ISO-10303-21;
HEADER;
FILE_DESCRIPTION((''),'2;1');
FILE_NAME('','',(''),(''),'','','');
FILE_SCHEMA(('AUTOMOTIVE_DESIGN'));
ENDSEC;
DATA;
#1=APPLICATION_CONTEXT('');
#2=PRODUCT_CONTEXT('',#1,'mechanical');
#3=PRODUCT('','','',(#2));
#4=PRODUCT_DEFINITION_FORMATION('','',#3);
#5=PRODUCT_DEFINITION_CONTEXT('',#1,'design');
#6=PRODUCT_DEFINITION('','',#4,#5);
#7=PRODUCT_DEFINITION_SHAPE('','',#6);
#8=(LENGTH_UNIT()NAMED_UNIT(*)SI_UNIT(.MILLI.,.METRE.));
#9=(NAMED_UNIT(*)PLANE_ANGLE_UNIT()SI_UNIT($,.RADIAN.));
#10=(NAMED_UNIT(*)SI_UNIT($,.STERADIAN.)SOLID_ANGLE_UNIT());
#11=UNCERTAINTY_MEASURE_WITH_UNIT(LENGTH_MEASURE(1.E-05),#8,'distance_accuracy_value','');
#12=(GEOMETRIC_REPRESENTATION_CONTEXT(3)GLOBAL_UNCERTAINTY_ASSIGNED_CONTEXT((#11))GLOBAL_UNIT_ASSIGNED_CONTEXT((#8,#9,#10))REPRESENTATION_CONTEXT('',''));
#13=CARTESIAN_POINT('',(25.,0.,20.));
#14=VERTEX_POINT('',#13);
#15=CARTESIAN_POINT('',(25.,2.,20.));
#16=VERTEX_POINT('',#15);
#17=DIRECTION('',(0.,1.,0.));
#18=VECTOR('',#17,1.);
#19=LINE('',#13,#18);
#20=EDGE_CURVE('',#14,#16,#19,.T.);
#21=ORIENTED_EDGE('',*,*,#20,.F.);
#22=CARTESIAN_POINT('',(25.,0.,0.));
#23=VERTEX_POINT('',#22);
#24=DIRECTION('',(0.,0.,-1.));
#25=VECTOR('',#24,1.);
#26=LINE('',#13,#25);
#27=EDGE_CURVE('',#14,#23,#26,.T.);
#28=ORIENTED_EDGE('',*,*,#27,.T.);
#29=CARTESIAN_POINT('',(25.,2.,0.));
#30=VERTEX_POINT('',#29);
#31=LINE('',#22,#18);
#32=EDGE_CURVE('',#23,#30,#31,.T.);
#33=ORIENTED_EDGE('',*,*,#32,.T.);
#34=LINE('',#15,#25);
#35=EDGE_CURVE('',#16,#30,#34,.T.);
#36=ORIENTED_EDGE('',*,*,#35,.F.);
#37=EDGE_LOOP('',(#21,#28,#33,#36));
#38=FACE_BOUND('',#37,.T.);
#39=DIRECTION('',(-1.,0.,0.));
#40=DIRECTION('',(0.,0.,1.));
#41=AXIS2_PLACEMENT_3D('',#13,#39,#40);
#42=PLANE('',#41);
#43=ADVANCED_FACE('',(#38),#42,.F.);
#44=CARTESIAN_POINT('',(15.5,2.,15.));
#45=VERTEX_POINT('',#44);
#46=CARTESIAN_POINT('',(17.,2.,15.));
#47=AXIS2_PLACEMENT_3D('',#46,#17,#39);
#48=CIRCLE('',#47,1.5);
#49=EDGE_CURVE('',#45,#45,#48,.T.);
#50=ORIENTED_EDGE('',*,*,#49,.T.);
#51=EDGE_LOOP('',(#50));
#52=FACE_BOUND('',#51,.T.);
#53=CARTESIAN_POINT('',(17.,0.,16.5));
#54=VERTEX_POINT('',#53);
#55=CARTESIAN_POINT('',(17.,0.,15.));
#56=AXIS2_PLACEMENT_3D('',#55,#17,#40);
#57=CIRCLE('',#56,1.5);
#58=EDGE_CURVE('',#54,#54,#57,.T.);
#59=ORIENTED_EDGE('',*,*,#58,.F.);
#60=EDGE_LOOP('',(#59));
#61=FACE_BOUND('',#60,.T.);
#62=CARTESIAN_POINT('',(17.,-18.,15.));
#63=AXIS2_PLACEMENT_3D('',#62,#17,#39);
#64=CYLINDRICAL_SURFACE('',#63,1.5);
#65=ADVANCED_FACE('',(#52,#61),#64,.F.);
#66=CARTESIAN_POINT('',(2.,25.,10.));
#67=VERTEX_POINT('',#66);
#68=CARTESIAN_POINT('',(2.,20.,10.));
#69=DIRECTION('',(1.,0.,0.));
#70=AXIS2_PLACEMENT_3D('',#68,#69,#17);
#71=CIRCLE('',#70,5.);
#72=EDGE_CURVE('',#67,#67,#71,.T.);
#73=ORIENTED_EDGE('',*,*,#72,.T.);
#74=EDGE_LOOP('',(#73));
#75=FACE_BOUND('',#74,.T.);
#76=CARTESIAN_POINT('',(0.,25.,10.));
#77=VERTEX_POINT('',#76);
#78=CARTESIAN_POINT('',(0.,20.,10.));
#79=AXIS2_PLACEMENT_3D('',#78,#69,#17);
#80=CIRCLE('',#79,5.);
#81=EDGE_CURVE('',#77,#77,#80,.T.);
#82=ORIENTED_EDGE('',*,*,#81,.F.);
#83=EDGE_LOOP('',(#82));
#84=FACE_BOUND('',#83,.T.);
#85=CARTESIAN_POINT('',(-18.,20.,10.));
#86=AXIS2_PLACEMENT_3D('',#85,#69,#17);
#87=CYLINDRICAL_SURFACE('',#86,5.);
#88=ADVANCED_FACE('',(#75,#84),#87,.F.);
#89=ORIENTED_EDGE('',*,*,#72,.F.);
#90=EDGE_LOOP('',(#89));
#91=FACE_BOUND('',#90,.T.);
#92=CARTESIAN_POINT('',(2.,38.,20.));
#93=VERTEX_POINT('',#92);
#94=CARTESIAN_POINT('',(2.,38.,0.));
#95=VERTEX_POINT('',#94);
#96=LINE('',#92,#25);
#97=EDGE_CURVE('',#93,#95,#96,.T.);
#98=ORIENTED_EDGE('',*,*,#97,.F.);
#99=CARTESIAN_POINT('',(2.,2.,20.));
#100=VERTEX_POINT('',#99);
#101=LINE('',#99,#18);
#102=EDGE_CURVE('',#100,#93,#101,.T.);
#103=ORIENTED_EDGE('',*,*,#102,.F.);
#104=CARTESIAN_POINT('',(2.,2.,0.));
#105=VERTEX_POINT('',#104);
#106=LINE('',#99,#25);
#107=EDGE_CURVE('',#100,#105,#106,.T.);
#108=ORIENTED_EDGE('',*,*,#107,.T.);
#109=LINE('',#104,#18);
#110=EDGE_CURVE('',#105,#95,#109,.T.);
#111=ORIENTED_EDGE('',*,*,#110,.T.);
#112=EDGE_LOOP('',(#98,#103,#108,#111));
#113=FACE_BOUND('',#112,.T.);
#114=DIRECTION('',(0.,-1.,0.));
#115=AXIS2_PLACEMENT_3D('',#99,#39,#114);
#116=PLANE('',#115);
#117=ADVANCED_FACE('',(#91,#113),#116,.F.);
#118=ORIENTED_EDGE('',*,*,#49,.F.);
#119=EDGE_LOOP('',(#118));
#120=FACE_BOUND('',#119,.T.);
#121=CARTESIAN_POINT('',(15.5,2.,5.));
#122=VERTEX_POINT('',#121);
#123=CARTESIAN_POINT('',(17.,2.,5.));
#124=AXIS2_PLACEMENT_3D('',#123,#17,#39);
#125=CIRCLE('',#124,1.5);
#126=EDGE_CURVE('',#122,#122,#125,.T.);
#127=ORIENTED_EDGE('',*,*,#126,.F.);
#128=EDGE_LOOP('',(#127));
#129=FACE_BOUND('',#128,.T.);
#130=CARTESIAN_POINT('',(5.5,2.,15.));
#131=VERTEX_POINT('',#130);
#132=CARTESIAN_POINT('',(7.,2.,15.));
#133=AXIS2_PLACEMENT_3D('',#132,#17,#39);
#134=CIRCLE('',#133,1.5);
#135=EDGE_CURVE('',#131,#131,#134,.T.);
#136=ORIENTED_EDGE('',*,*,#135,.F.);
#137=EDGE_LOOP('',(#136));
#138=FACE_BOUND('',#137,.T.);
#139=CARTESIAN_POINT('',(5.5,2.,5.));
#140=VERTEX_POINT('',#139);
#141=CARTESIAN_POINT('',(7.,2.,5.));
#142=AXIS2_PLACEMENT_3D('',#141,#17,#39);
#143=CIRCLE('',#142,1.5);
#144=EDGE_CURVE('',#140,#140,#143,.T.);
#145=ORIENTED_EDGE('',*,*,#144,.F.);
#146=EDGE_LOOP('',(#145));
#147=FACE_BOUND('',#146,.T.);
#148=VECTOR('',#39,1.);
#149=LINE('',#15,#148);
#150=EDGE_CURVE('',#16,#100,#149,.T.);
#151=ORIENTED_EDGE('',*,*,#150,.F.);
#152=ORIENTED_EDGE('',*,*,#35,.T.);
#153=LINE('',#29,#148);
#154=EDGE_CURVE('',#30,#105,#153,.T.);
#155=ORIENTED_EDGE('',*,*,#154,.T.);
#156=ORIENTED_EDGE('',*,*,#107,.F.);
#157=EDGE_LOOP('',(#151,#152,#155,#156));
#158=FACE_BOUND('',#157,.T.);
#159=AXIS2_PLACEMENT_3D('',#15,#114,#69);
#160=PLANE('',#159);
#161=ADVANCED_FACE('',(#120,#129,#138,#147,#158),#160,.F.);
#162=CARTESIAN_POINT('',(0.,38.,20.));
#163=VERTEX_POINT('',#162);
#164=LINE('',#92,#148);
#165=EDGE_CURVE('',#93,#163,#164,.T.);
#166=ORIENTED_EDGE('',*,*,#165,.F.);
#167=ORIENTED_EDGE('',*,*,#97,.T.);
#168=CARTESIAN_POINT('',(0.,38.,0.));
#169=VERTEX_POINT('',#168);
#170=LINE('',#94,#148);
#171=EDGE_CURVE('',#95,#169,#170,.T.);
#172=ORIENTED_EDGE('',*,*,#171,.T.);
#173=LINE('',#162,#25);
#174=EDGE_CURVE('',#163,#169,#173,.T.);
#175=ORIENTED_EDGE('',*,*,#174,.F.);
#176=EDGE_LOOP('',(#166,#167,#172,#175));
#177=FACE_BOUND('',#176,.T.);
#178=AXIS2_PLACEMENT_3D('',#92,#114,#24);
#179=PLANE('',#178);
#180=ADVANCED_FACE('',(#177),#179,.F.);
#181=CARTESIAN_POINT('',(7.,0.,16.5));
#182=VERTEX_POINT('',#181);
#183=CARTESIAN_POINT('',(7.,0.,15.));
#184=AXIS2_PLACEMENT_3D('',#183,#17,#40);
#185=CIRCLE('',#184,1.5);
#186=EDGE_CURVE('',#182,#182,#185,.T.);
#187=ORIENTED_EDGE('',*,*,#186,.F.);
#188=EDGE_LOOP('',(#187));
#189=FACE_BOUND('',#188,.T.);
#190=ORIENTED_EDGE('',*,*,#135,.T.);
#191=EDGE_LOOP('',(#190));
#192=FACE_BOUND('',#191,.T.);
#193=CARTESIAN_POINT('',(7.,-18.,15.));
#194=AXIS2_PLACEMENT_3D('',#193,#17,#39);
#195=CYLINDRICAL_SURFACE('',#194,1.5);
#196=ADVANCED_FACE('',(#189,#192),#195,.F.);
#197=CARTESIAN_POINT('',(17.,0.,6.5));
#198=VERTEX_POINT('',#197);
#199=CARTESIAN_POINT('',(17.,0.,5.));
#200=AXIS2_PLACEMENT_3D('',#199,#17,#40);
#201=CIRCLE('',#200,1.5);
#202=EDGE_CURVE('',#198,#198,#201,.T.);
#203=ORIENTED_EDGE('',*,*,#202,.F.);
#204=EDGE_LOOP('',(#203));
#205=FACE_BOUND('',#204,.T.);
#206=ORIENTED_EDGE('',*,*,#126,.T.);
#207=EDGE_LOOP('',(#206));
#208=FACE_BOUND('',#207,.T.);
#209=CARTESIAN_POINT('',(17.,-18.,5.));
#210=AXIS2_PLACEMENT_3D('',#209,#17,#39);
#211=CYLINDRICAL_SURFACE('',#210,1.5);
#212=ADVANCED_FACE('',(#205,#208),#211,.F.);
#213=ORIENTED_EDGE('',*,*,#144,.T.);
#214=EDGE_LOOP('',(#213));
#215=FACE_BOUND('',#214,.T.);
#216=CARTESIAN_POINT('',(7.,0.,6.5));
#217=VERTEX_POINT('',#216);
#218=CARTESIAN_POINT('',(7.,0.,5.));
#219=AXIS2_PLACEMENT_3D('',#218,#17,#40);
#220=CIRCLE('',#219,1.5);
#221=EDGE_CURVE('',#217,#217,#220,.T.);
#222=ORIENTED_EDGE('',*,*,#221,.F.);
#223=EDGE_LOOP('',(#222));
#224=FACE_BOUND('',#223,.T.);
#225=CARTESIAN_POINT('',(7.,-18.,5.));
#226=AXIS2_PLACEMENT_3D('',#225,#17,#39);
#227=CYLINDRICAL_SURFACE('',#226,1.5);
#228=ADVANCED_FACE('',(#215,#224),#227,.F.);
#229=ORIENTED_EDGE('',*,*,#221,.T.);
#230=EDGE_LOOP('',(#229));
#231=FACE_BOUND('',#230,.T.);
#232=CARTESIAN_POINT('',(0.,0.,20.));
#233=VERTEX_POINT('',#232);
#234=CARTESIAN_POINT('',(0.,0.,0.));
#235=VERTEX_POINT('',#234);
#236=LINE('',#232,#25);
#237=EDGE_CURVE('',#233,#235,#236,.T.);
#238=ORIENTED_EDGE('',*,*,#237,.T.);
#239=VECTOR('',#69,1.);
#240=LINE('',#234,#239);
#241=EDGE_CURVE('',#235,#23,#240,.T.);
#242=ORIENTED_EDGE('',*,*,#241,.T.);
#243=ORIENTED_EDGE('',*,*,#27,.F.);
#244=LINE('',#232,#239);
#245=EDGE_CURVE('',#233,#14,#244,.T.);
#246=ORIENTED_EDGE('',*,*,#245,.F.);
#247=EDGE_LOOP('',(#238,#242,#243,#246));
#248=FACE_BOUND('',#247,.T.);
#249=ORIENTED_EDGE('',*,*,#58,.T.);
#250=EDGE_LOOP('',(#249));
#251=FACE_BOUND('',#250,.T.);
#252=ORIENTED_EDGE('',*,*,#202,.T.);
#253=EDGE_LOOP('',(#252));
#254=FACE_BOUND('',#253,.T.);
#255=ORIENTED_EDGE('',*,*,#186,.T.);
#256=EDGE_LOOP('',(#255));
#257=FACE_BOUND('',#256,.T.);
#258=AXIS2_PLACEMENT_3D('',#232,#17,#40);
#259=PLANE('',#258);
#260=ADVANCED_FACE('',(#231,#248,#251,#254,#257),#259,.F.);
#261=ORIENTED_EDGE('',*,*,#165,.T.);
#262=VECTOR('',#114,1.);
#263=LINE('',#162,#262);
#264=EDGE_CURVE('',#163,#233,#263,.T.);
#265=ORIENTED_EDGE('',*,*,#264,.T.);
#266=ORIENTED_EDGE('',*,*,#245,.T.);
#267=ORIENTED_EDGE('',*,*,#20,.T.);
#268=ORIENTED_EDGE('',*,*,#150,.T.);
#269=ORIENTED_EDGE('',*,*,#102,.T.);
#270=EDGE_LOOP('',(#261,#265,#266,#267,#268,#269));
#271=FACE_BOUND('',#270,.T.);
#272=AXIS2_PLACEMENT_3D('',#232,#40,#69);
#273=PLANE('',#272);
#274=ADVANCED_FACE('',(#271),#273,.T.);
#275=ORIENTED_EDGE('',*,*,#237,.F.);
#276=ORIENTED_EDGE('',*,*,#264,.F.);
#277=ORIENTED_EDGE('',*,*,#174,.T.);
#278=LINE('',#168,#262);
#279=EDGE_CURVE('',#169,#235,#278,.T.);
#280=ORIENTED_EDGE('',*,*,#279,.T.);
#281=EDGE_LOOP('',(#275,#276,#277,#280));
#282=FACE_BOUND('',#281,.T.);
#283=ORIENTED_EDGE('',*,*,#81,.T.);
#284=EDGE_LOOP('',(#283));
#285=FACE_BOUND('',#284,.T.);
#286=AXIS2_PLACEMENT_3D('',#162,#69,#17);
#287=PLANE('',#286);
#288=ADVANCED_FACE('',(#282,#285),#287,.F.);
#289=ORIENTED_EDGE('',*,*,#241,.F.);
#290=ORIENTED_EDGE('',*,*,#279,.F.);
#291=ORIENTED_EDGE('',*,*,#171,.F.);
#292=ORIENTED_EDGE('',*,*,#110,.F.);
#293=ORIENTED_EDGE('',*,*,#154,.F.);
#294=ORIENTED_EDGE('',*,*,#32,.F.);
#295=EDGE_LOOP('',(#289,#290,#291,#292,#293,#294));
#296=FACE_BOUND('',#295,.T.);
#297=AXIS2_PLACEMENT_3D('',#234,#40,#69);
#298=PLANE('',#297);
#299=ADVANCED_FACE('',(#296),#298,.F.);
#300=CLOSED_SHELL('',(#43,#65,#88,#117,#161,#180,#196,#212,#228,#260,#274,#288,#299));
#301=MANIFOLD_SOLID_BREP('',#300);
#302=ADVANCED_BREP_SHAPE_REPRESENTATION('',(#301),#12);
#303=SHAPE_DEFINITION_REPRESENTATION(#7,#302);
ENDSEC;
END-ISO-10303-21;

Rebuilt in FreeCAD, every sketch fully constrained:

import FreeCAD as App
import Part
import Sketcher

V = App.Vector
Q = App.Units.Quantity


def add_polygon(sketch, points):
    """Adds a closed chain of lines whose ends are joined by coincident constraints."""
    first, n = sketch.GeometryCount, len(points)
    for a, b in zip(points, points[1:] + points[:1]):
        sketch.addGeometry(Part.LineSegment(App.Vector(*a, 0), App.Vector(*b, 0)), False)
    for i in range(n):
        sketch.addConstraint(Sketcher.Constraint("Coincident", first + i, 2, first + (i + 1) % n, 1))

doc = App.newDocument("Part")
body = doc.addObject("PartDesign::Body", "Body")

sketch1 = body.newObject("Sketcher::SketchObject", "Sketch")
sketch1.AttachmentSupport = (doc.getObject("XY_Plane"), [""])
sketch1.MapMode = "FlatFace"
add_polygon(sketch1, [(0, 0), (25, 0), (25, 2), (2, 2), (2, 38), (0, 38)])
sketch1.addConstraint(Sketcher.Constraint("Horizontal", 0))
sketch1.addConstraint(Sketcher.Constraint("Vertical", 1))
sketch1.addConstraint(Sketcher.Constraint("Horizontal", 2))
sketch1.addConstraint(Sketcher.Constraint("Vertical", 3))
sketch1.addConstraint(Sketcher.Constraint("Horizontal", 4))
sketch1.addConstraint(Sketcher.Constraint("Vertical", 5))
sketch1.addConstraint(Sketcher.Constraint("Coincident", 5, 2, -1, 1))
sketch1.addConstraint(Sketcher.Constraint("Equal", 4, 1))
sketch1.addConstraint(Sketcher.Constraint("DistanceX", 0, 1, 0, 2, Q("25 mm")))
sketch1.addConstraint(Sketcher.Constraint("DistanceX", 2, 2, 2, 1, Q("23 mm")))
sketch1.addConstraint(Sketcher.Constraint("DistanceY", 3, 1, 3, 2, Q("36 mm")))
pad1 = body.newObject("PartDesign::Pad", "Pad")
pad1.Profile = sketch1
pad1.Length = 20

sketch2 = body.newObject("Sketcher::SketchObject", "Sketch001")
sketch2.AttachmentSupport = (doc.getObject("XZ_Plane"), [""])
sketch2.MapMode = "FlatFace"
sketch2.AttachmentOffset = App.Placement(V(0, 0, -2), App.Rotation())
sketch2.addGeometry(Part.Circle(V(17, 5, 0), V(0, 0, 1), 1.5), False)
sketch2.addGeometry(Part.Circle(V(17, 15, 0), V(0, 0, 1), 1.5), False)
sketch2.addGeometry(Part.Circle(V(7, 5, 0), V(0, 0, 1), 1.5), False)
sketch2.addGeometry(Part.Circle(V(7, 15, 0), V(0, 0, 1), 1.5), False)
sketch2.addConstraint(Sketcher.Constraint("Equal", 0, 1))
sketch2.addConstraint(Sketcher.Constraint("Equal", 1, 2))
sketch2.addConstraint(Sketcher.Constraint("Equal", 2, 3))
sketch2.addConstraint(Sketcher.Constraint("Horizontal", 0, 3, 2, 3))
sketch2.addConstraint(Sketcher.Constraint("Horizontal", 1, 3, 3, 3))
sketch2.addConstraint(Sketcher.Constraint("Vertical", 0, 3, 1, 3))
sketch2.addConstraint(Sketcher.Constraint("Vertical", 2, 3, 3, 3))
sketch2.addConstraint(Sketcher.Constraint("Diameter", 0, Q("3 mm")))
sketch2.addConstraint(Sketcher.Constraint("DistanceX", -1, 1, 0, 3, Q("17 mm")))
sketch2.addConstraint(Sketcher.Constraint("DistanceY", -1, 1, 0, 3, Q("5 mm")))
sketch2.addConstraint(Sketcher.Constraint("DistanceY", -1, 1, 1, 3, Q("15 mm")))
sketch2.addConstraint(Sketcher.Constraint("DistanceX", -1, 1, 2, 3, Q("7 mm")))
pocket1 = body.newObject("PartDesign::Pocket", "Pocket")
pocket1.Profile = sketch2
pocket1.Length = 20
pocket1.Reversed = True

sketch3 = body.newObject("Sketcher::SketchObject", "Sketch002")
sketch3.AttachmentSupport = (doc.getObject("YZ_Plane"), [""])
sketch3.MapMode = "FlatFace"
sketch3.AttachmentOffset = App.Placement(V(0, 0, 2), App.Rotation())
sketch3.addGeometry(Part.Circle(V(20, 10, 0), V(0, 0, 1), 5), False)
sketch3.addConstraint(Sketcher.Constraint("Diameter", 0, Q("10 mm")))
sketch3.addConstraint(Sketcher.Constraint("DistanceX", -1, 1, 0, 3, Q("20 mm")))
sketch3.addConstraint(Sketcher.Constraint("DistanceY", -1, 1, 0, 3, Q("10 mm")))
pocket2 = body.newObject("PartDesign::Pocket", "Pocket001")
pocket2.Profile = sketch3
pocket2.Length = 20

doc.recompute()
